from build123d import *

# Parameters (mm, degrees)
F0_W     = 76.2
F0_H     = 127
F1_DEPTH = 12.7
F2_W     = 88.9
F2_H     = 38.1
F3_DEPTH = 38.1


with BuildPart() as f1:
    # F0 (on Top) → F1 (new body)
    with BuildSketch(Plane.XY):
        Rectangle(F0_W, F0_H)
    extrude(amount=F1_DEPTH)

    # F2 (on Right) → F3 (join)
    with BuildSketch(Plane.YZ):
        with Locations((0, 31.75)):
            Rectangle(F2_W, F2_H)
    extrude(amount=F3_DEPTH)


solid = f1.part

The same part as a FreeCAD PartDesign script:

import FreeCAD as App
import Part
import Sketcher

V = App.Vector
Q = App.Units.Quantity


def add_polygon(sketch, points):
    """Adds a closed chain of lines whose ends are joined by coincident constraints."""
    first, n = sketch.GeometryCount, len(points)
    for a, b in zip(points, points[1:] + points[:1]):
        sketch.addGeometry(Part.LineSegment(App.Vector(*a, 0), App.Vector(*b, 0)), False)
    for i in range(n):
        sketch.addConstraint(Sketcher.Constraint("Coincident", first + i, 2, first + (i + 1) % n, 1))

doc = App.newDocument("Part")
params = doc.addObject("Spreadsheet::Sheet", "Params")
for row, (alias, value) in enumerate([
    ("sketch1_width", "3 in"),
    ("sketch1_height", "5 in"),
    ("pad1_length", "0.5 in"),
    ("sketch2_width", "3.5 in"),
    ("sketch2_height", "1.5 in"),
    ("pad2_length", "1.5 in"),
], start=1):
    params.set(f"A{row}", alias)
    params.set(f"B{row}", "=" + value)
    params.setAlias(f"B{row}", alias)

body = doc.addObject("PartDesign::Body", "Body")

# Sketch on XY plane
sketch1 = body.newObject("Sketcher::SketchObject", "Sketch")
sketch1.AttachmentSupport = (doc.getObject("XY_Plane"), [""])
sketch1.MapMode = "FlatFace"
add_polygon(sketch1, [(-38, 64), (-38, -64), (38, -64), (38, 64)])  # lines 0-3
sketch1.addConstraint([
    Sketcher.Constraint("Vertical", 0),
    Sketcher.Constraint("Horizontal", 1),
    Sketcher.Constraint("Vertical", 2),
    Sketcher.Constraint("Horizontal", 3),
    Sketcher.Constraint("Symmetric", 0, 2, 2, 2, -1, 1),
    Sketcher.Constraint("DistanceX", 1, 1, 1, 2, Q("3 in")),
    Sketcher.Constraint("DistanceY", 0, 2, 0, 1, Q("5 in")),
])
sketch1.setExpression("Constraints[9]", "Params.sketch1_width")
sketch1.setExpression("Constraints[10]", "Params.sketch1_height")
pad1 = body.newObject("PartDesign::Pad", "Pad")
pad1.Profile = sketch1
pad1.setExpression("Length", "Params.pad1_length")

# Sketch on YZ plane
sketch2 = body.newObject("Sketcher::SketchObject", "Sketch001")
sketch2.AttachmentSupport = (doc.getObject("YZ_Plane"), [""])
sketch2.MapMode = "FlatFace"
add_polygon(sketch2, [(-44, 51), (-44, 13), (44, 13), (44, 51)])  # lines 0-3
sketch2.addConstraint([
    Sketcher.Constraint("Vertical", 0),
    Sketcher.Constraint("Horizontal", 1),
    Sketcher.Constraint("Vertical", 2),
    Sketcher.Constraint("Horizontal", 3),
    Sketcher.Constraint("DistanceX", 1, 1, 1, 2, Q("3.5 in")),
    Sketcher.Constraint("DistanceY", 0, 2, 0, 1, Q("1.5 in")),
    Sketcher.Constraint("DistanceY", -1, 1, 2, 2, Q("2 in")),
    Sketcher.Constraint("DistanceX", 0, 2, -1, 1, Q("1.75 in")),
])
sketch2.setExpression("Constraints[8]", "Params.sketch2_width")
sketch2.setExpression("Constraints[9]", "Params.sketch2_height")
pad2 = body.newObject("PartDesign::Pad", "Pad001")
pad2.Profile = sketch2
pad2.setExpression("Length", "Params.pad2_length")

doc.recompute()
